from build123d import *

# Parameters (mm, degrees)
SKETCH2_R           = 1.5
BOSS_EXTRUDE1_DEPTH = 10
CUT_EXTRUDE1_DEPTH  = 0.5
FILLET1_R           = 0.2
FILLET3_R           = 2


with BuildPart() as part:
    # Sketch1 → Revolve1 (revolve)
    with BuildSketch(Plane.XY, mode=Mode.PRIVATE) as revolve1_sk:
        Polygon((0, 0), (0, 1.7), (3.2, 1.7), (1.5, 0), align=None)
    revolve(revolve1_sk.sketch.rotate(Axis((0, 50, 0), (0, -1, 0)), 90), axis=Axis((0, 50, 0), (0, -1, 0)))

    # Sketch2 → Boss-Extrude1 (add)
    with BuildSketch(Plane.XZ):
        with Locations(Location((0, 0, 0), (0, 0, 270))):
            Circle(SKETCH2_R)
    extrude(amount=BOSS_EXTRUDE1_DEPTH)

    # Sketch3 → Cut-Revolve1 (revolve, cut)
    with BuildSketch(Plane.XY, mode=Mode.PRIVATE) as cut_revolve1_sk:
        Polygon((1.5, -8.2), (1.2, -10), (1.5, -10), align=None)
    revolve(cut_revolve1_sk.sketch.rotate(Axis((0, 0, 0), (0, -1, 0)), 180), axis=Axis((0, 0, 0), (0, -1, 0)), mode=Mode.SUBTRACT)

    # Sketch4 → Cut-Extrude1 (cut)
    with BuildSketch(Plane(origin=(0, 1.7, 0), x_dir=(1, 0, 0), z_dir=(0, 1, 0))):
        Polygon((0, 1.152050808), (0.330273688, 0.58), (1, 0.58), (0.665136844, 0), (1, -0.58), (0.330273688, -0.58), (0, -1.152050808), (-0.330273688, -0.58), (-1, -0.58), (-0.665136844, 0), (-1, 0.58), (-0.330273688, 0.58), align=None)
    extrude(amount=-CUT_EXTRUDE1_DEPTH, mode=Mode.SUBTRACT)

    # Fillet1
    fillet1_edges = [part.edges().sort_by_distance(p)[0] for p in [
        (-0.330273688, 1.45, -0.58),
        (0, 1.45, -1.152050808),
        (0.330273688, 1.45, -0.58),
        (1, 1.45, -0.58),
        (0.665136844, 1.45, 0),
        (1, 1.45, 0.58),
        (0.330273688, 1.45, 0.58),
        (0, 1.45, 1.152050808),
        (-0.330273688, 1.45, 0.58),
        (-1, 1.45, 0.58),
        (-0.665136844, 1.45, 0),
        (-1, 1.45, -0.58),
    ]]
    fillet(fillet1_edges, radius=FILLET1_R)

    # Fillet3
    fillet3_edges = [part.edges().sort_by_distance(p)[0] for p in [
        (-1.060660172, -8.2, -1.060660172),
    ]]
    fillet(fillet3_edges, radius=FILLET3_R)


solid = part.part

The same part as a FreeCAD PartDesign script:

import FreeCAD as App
import Part
import Sketcher
Q = App.Units.Quantity


def edges_at(feature, points):
    """Names of the edges that pass closest to the given points."""
    edges = feature.Shape.Edges
    near = lambda p: min(range(len(edges)), key=lambda i: edges[i].distToShape(Part.Vertex(*p))[0])
    return sorted({f"Edge{near(p) + 1}" for p in points})

doc = App.newDocument("Part")
body = doc.addObject("PartDesign::Body", "Body")

sketch1 = body.newObject("Sketcher::SketchObject", "Sketch")
sketch1.AttachmentSupport = (doc.getObject("XY_Plane"), [""])
sketch1.MapMode = "FlatFace"
sketch1.addGeometry(Part.LineSegment(App.Vector(0, 1.7, 0), App.Vector(0, 0, 0)), False)
sketch1.addGeometry(Part.LineSegment(App.Vector(0, 0, 0), App.Vector(1.5, 0, 0)), False)
sketch1.addGeometry(Part.LineSegment(App.Vector(1.5, 0, 0), App.Vector(3.2, 1.7, 0)), False)
sketch1.addGeometry(Part.LineSegment(App.Vector(3.2, 1.7, 0), App.Vector(0, 1.7, 0)), False)
sketch1.addConstraint(Sketcher.Constraint("Coincident", 0, 2, 1, 1))
sketch1.addConstraint(Sketcher.Constraint("Coincident", 1, 2, 2, 1))
sketch1.addConstraint(Sketcher.Constraint("Coincident", 2, 2, 3, 1))
sketch1.addConstraint(Sketcher.Constraint("Coincident", 3, 2, 0, 1))
sketch1.addConstraint(Sketcher.Constraint("Vertical", 0))
sketch1.addConstraint(Sketcher.Constraint("Horizontal", 1))
sketch1.addConstraint(Sketcher.Constraint("Horizontal", 3))
sketch1.addConstraint(Sketcher.Constraint("Coincident", 0, 2, -1, 1))
sketch1.addConstraint(Sketcher.Constraint("Angle", 2, Q("45 deg")))
sketch1.addConstraint(Sketcher.Constraint("DistanceX", 1, 1, 1, 2, 1.5))
sketch1.addConstraint(Sketcher.Constraint("DistanceX", 3, 2, 3, 1, 3.2))
revolution = body.newObject("PartDesign::Revolution", "Revolution")
revolution.Profile = sketch1
revolution.ReferenceAxis = (sketch1, ["V_Axis"])
revolution.Angle = 360

sketch2 = body.newObject("Sketcher::SketchObject", "Sketch001")
sketch2.AttachmentSupport = (doc.getObject("XZ_Plane"), [""])
sketch2.MapMode = "FlatFace"
sketch2.addGeometry(Part.Circle(App.Vector(0, 0, 0), App.Vector(0, 0, 1), 1.5), False)
sketch2.addConstraint(Sketcher.Constraint("Coincident", 0, 3, -1, 1))
sketch2.addConstraint(Sketcher.Constraint("Diameter", 0, 3.0))
pad1 = body.newObject("PartDesign::Pad", "Pad")
pad1.Profile = sketch2
pad1.Length = 10

sketch3 = body.newObject("Sketcher::SketchObject", "Sketch002")
sketch3.AttachmentSupport = (doc.getObject("XY_Plane"), [""])
sketch3.MapMode = "FlatFace"
sketch3.addGeometry(Part.LineSegment(App.Vector(1.5, -8.2, 0), App.Vector(1.2, -10, 0)), False)
sketch3.addGeometry(Part.LineSegment(App.Vector(1.2, -10, 0), App.Vector(1.5, -10, 0)), False)
sketch3.addGeometry(Part.LineSegment(App.Vector(1.5, -10, 0), App.Vector(1.5, -8.2, 0)), False)
sketch3.addConstraint(Sketcher.Constraint("Coincident", 0, 2, 1, 1))
sketch3.addConstraint(Sketcher.Constraint("Coincident", 1, 2, 2, 1))
sketch3.addConstraint(Sketcher.Constraint("Coincident", 2, 2, 0, 1))
sketch3.addConstraint(Sketcher.Constraint("Horizontal", 1))
sketch3.addConstraint(Sketcher.Constraint("Vertical", 2))
sketch3.addConstraint(Sketcher.Constraint("DistanceX", 1, 1, 1, 2, 0.3))
sketch3.addConstraint(Sketcher.Constraint("DistanceY", 2, 1, 2, 2, 1.8))
sketch3.addConstraint(Sketcher.Constraint("DistanceY", 0, 2, -1, 1, 10.0))
sketch3.addConstraint(Sketcher.Constraint("DistanceX", -1, 1, 0, 2, 1.2))
groove = body.newObject("PartDesign::Groove", "Groove")
groove.Profile = sketch3
groove.ReferenceAxis = (sketch3, ["V_Axis"])
groove.Angle = 360

sketch4 = body.newObject("Sketcher::SketchObject", "Sketch003")
sketch4.AttachmentSupport = (doc.getObject("XZ_Plane"), [""])
sketch4.MapMode = "FlatFace"
sketch4.AttachmentOffset = App.Placement(App.Vector(0, 0, -1.7), App.Rotation())
sketch4.addGeometry(Part.LineSegment(App.Vector(0.3, -0.6, 0), App.Vector(0, -1.2, 0)), False)
sketch4.addGeometry(Part.LineSegment(App.Vector(0, -1.2, 0), App.Vector(-0.3, -0.6, 0)), False)
sketch4.addGeometry(Part.LineSegment(App.Vector(-0.3, -0.6, 0), App.Vector(-1, -0.6, 0)), False)
sketch4.addGeometry(Part.LineSegment(App.Vector(-1, -0.6, 0), App.Vector(-0.7, 0, 0)), False)
sketch4.addGeometry(Part.LineSegment(App.Vector(-0.7, 0, 0), App.Vector(-1, 0.6, 0)), False)
sketch4.addGeometry(Part.LineSegment(App.Vector(-1, 0.6, 0), App.Vector(-0.3, 0.6, 0)), False)
sketch4.addGeometry(Part.LineSegment(App.Vector(-0.3, 0.6, 0), App.Vector(0, 1.2, 0)), False)
sketch4.addGeometry(Part.LineSegment(App.Vector(0, 1.2, 0), App.Vector(0.3, 0.6, 0)), False)
sketch4.addGeometry(Part.LineSegment(App.Vector(0.3, 0.6, 0), App.Vector(1, 0.6, 0)), False)
sketch4.addGeometry(Part.LineSegment(App.Vector(1, 0.6, 0), App.Vector(0.7, 0, 0)), False)
sketch4.addGeometry(Part.LineSegment(App.Vector(0.7, 0, 0), App.Vector(1, -0.6, 0)), False)
sketch4.addGeometry(Part.LineSegment(App.Vector(1, -0.6, 0), App.Vector(0.3, -0.6, 0)), False)
sketch4.addConstraint(Sketcher.Constraint("Coincident", 0, 2, 1, 1))
sketch4.addConstraint(Sketcher.Constraint("Coincident", 1, 2, 2, 1))
sketch4.addConstraint(Sketcher.Constraint("Coincident", 2, 2, 3, 1))
sketch4.addConstraint(Sketcher.Constraint("Coincident", 3, 2, 4, 1))
sketch4.addConstraint(Sketcher.Constraint("Coincident", 4, 2, 5, 1))
sketch4.addConstraint(Sketcher.Constraint("Coincident", 5, 2, 6, 1))
sketch4.addConstraint(Sketcher.Constraint("Coincident", 6, 2, 7, 1))
sketch4.addConstraint(Sketcher.Constraint("Coincident", 7, 2, 8, 1))
sketch4.addConstraint(Sketcher.Constraint("Coincident", 8, 2, 9, 1))
sketch4.addConstraint(Sketcher.Constraint("Coincident", 9, 2, 10, 1))
sketch4.addConstraint(Sketcher.Constraint("Coincident", 10, 2, 11, 1))
sketch4.addConstraint(Sketcher.Constraint("Coincident", 11, 2, 0, 1))
sketch4.addConstraint(Sketcher.Constraint("Horizontal", 2))
sketch4.addConstraint(Sketcher.Constraint("Horizontal", 5))
sketch4.addConstraint(Sketcher.Constraint("Horizontal", 8))
sketch4.addConstraint(Sketcher.Constraint("Horizontal", 11))
sketch4.addConstraint(Sketcher.Constraint("Symmetric", 0, 2, 6, 2, -1, 1))
sketch4.addConstraint(Sketcher.Constraint("Symmetric", 1, 2, 7, 2, -1, 1))
sketch4.addConstraint(Sketcher.Constraint("Symmetric", 3, 2, 9, 2, -1, 1))
sketch4.addConstraint(Sketcher.Constraint("Symmetric", 4, 2, 10, 2, -1, 1))
sketch4.addConstraint(Sketcher.Constraint("Symmetric", 5, 2, 7, 2, -2))
sketch4.addConstraint(Sketcher.Constraint("PointOnObject", 0, 2, -2))
sketch4.addConstraint(Sketcher.Constraint("PointOnObject", 3, 2, -1))
sketch4.addConstraint(Sketcher.Constraint("Parallel", 0, 3))
sketch4.addConstraint(Sketcher.Constraint("Parallel", 1, 4))
sketch4.addConstraint(Sketcher.Constraint("Parallel", 3, 6))
sketch4.addConstraint(Sketcher.Constraint("Parallel", 6, 9))
sketch4.addConstraint(Sketcher.Constraint("Angle", 0, Q("-120 deg")))
sketch4.addConstraint(Sketcher.Constraint("DistanceX", 2, 2, -1, 1, 1.0))
sketch4.addConstraint(Sketcher.Constraint("DistanceY", 1, 2, -1, 1, 0.58))
sketch4.addConstraint(Sketcher.Constraint("DistanceX", 2, 2, 2, 1, 0.669726))
pocket1 = body.newObject("PartDesign::Pocket", "Pocket")
pocket1.Profile = sketch4
pocket1.Length = 0.5
pocket1.Reversed = True
doc.recompute()

fillet = body.newObject("PartDesign::Fillet", "Fillet")
fillet.Base = (pocket1, edges_at(pocket1, [
    (-0.33, 1.45, -0.58),
    (0, 1.45, -1.152),
    (0.33, 1.45, -0.58),
    (1, 1.45, -0.58),
    (0.665, 1.45, 0),
    (1, 1.45, 0.58),
    (0.33, 1.45, 0.58),
    (0, 1.45, 1.152),
    (-0.33, 1.45, 0.58),
    (-1, 1.45, 0.58),
    (-0.665, 1.45, 0),
    (-1, 1.45, -0.58),
]))
fillet.Radius = 0.2
doc.recompute()

fillet2 = body.newObject("PartDesign::Fillet", "Fillet001")
fillet2.Base = (fillet, edges_at(fillet, [(-1.061, -8.2, -1.061)]))
fillet2.Radius = 2

doc.recompute()
